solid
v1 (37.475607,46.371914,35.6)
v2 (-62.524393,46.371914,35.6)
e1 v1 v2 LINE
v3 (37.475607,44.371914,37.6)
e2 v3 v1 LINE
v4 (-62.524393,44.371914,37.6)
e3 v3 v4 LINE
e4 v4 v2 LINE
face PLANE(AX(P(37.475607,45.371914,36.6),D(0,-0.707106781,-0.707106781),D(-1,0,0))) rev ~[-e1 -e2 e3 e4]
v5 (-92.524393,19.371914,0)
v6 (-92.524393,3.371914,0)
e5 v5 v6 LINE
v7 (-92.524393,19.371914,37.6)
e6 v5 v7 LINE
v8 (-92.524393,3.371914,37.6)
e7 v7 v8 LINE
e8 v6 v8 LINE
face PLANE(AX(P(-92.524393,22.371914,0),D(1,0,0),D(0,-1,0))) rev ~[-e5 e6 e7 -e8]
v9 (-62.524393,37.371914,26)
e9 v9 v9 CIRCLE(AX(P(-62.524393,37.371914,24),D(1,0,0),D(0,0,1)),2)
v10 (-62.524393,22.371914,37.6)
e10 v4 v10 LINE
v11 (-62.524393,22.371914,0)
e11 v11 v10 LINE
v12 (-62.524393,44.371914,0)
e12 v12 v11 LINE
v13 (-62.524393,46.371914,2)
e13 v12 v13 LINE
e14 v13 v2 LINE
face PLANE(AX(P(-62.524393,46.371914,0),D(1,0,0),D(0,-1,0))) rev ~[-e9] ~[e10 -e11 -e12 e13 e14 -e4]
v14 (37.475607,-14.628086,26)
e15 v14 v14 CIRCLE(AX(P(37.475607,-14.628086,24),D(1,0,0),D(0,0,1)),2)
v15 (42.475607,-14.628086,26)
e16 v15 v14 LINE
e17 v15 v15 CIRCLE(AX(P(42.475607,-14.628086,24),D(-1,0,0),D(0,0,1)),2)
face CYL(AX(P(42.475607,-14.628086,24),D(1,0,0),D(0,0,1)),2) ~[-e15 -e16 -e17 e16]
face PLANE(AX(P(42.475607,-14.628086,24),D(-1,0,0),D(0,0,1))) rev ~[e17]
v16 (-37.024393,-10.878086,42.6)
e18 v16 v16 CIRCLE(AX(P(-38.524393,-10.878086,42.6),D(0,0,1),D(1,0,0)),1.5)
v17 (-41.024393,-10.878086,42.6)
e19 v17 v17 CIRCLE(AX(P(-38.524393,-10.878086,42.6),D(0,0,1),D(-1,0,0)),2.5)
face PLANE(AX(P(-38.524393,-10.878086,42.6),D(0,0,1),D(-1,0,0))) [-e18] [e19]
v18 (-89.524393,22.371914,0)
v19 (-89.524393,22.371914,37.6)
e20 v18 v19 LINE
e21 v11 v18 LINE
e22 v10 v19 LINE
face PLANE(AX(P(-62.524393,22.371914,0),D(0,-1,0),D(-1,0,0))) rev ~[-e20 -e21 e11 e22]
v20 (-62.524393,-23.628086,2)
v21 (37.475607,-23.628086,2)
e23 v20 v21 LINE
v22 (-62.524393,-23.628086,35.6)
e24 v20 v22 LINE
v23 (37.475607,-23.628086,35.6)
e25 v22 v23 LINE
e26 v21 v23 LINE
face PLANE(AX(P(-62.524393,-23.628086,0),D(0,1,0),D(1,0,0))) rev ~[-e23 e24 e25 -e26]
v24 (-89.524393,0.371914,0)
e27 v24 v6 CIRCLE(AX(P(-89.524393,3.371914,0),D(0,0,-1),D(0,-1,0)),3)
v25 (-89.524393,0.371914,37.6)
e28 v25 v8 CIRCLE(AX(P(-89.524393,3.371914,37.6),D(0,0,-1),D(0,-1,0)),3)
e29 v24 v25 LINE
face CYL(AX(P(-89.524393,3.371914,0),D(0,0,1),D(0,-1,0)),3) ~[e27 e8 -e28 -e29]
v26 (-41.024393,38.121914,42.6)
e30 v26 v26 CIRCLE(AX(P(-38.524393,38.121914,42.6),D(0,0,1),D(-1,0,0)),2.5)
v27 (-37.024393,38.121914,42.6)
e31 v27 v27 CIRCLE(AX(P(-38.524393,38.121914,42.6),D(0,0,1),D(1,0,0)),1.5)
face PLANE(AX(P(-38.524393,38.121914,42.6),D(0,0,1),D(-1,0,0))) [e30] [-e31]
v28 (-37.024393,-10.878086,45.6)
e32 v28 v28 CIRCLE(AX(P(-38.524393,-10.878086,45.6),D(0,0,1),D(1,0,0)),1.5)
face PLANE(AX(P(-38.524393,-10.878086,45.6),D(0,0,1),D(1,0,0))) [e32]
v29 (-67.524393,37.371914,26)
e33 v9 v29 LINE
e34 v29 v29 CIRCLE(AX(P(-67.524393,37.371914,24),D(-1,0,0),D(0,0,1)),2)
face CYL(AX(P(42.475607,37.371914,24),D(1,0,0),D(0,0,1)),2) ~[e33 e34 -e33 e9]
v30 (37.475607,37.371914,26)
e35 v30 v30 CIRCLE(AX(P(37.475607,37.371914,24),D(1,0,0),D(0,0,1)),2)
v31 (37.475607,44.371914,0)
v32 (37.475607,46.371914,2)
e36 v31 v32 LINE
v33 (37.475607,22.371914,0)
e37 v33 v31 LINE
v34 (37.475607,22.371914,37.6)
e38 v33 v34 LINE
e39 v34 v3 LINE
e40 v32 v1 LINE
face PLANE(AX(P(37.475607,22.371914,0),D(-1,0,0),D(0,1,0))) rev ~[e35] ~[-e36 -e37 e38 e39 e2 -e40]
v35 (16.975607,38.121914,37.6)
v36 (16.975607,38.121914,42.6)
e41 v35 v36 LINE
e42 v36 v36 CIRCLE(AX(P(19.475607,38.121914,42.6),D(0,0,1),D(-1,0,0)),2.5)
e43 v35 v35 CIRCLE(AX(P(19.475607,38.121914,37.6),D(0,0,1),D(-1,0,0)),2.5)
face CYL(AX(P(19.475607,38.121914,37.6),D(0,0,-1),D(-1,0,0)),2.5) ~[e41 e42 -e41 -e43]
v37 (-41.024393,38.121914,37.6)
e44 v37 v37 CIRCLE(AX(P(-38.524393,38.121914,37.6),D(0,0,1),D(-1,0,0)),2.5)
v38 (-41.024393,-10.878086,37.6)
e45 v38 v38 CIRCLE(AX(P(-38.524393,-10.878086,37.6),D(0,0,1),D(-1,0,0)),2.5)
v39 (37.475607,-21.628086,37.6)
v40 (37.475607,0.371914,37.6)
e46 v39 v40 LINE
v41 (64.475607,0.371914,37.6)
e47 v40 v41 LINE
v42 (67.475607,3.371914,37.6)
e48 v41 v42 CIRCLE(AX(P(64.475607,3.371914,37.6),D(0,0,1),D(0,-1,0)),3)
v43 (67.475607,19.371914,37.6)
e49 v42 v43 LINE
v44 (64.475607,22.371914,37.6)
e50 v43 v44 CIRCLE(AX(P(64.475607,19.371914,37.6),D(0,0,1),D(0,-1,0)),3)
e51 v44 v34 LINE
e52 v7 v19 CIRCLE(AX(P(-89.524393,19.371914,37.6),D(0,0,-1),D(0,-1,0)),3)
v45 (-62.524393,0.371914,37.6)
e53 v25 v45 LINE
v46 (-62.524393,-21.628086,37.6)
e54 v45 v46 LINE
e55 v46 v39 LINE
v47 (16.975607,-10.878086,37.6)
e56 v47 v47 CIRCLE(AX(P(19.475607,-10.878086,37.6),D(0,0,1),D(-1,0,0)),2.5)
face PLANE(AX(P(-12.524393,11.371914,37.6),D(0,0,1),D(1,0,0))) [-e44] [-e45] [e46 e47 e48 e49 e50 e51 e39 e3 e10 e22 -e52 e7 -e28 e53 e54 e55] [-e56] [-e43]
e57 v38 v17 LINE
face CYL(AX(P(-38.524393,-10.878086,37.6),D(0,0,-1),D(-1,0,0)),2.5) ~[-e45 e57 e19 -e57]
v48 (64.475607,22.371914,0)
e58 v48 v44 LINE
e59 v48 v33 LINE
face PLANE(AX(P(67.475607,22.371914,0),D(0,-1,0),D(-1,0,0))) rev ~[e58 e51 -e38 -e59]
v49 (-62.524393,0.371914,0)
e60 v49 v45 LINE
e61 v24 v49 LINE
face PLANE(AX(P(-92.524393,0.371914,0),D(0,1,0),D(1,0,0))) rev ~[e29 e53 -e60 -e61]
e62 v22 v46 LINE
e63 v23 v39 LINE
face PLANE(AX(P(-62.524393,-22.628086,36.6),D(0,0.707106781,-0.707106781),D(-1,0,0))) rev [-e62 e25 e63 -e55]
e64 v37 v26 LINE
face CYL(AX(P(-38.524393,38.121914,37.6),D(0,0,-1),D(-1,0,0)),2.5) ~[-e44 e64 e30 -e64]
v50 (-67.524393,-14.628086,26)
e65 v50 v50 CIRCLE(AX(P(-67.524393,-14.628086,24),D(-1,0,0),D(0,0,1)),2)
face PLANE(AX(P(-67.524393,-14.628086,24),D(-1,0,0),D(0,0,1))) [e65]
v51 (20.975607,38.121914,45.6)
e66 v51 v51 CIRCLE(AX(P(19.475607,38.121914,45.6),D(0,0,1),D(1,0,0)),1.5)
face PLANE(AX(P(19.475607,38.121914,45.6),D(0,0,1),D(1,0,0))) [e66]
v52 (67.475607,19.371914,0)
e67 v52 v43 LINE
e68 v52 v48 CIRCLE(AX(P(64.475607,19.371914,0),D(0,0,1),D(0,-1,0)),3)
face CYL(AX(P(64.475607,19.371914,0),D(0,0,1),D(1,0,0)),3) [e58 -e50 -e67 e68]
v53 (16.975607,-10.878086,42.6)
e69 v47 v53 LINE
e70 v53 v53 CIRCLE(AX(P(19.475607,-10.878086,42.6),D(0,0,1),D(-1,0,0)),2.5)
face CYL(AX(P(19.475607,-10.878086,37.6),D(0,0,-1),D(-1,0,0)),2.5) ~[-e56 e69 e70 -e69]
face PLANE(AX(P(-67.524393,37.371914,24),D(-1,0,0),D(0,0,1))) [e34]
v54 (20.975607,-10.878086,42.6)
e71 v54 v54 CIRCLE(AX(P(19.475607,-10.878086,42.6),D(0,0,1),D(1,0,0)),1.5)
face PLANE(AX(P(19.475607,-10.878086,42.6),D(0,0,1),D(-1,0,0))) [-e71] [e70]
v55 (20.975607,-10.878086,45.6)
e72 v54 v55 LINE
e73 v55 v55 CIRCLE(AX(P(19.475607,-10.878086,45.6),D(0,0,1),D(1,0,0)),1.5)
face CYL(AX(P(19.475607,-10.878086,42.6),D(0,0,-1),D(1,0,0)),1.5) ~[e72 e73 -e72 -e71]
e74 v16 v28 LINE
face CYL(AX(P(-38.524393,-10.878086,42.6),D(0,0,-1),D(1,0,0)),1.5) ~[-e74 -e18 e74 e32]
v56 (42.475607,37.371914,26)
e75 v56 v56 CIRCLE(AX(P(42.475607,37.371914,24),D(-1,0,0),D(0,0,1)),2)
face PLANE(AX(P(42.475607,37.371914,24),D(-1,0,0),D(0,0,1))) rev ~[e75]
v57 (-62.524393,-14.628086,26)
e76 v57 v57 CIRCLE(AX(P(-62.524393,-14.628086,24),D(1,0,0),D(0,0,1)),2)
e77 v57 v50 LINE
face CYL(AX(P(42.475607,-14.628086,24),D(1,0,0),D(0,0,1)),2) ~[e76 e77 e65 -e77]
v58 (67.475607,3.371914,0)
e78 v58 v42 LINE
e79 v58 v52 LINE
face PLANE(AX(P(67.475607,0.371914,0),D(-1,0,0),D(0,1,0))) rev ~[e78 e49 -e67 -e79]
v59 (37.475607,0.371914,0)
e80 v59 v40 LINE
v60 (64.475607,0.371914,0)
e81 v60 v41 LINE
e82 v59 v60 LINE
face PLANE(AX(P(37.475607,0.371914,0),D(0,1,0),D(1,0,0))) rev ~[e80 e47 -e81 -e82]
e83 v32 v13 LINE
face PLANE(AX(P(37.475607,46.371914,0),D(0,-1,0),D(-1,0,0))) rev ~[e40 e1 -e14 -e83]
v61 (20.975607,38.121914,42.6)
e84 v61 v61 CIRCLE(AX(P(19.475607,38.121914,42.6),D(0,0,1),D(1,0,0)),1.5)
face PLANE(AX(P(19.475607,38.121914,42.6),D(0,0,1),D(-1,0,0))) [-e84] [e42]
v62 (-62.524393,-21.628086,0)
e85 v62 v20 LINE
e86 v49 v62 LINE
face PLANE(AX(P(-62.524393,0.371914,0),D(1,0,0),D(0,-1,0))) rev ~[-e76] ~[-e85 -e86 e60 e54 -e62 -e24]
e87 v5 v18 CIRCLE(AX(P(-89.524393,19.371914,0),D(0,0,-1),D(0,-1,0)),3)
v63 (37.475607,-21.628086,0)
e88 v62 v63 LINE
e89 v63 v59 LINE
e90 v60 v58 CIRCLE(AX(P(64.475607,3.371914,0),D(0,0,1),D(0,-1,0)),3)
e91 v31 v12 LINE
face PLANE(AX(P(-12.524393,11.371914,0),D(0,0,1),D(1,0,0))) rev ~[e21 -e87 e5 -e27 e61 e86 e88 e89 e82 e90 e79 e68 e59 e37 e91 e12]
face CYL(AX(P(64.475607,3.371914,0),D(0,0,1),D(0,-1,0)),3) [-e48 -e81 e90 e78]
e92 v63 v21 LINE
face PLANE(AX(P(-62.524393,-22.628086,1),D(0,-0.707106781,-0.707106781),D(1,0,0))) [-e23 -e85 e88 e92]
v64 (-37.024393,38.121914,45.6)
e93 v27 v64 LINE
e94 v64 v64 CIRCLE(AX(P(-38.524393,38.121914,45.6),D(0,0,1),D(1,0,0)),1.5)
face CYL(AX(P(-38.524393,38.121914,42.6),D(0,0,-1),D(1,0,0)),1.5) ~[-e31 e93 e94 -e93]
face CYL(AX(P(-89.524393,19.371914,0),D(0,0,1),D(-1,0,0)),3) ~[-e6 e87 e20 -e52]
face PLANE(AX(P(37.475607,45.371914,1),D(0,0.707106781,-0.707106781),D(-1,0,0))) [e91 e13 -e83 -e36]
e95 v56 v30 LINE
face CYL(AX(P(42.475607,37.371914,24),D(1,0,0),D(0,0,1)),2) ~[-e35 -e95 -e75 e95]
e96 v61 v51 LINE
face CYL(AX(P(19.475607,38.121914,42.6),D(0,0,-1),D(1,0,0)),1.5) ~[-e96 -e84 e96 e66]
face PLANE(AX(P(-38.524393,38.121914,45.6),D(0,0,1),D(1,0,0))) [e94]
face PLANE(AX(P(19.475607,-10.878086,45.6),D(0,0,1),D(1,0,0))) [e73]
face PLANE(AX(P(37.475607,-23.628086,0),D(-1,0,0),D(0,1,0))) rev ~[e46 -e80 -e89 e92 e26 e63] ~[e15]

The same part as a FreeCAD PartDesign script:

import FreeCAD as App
import Part
import Sketcher


def edges_at(feature, points):
    """Names of the edges that pass closest to the given points."""
    edges = feature.Shape.Edges
    near = lambda p: min(range(len(edges)), key=lambda i: edges[i].distToShape(Part.Vertex(*p))[0])
    return sorted({f"Edge{near(p) + 1}" for p in points})


def add_polygon(sketch, points):
    """Adds a closed chain of lines whose ends are joined by coincident constraints."""
    first, n = sketch.GeometryCount, len(points)
    for a, b in zip(points, points[1:] + points[:1]):
        sketch.addGeometry(Part.LineSegment(App.Vector(*a, 0), App.Vector(*b, 0)), False)
    for i in range(n):
        sketch.addConstraint(Sketcher.Constraint("Coincident", first + i, 2, first + (i + 1) % n, 1))

doc = App.newDocument("Part")
body = doc.addObject("PartDesign::Body", "Body")

sketch1 = body.newObject("Sketcher::SketchObject", "Sketch")
sketch1.AttachmentSupport = (doc.getObject("XY_Plane"), [""])
sketch1.MapMode = "FlatFace"
add_polygon(sketch1, [(-63, 0), (-63, -24), (37, -24), (37, 0), (67, 0), (67, 22), (37, 22), (37, 46), (-63, 46), (-63, 22), (-93, 22), (-93, 0)])
sketch1.addConstraint(Sketcher.Constraint("Vertical", 0))
sketch1.addConstraint(Sketcher.Constraint("Horizontal", 1))
sketch1.addConstraint(Sketcher.Constraint("Vertical", 2))
sketch1.addConstraint(Sketcher.Constraint("Horizontal", 3))
sketch1.addConstraint(Sketcher.Constraint("Vertical", 4))
sketch1.addConstraint(Sketcher.Constraint("Horizontal", 5))
sketch1.addConstraint(Sketcher.Constraint("Vertical", 6))
sketch1.addConstraint(Sketcher.Constraint("Horizontal", 7))
sketch1.addConstraint(Sketcher.Constraint("Vertical", 8))
sketch1.addConstraint(Sketcher.Constraint("Horizontal", 9))
sketch1.addConstraint(Sketcher.Constraint("Vertical", 10))
sketch1.addConstraint(Sketcher.Constraint("Horizontal", 11))
sketch1.addConstraint(Sketcher.Constraint("Horizontal", 5, 2, 8, 2))
sketch1.addConstraint(Sketcher.Constraint("Horizontal", 3, 2, 10, 2))
sketch1.addConstraint(Sketcher.Constraint("Vertical", 2, 2, 5, 2))
sketch1.addConstraint(Sketcher.Constraint("Vertical", 0, 2, 7, 2))
sketch1.addConstraint(Sketcher.Constraint("Equal", 5, 9))
sketch1.addConstraint(Sketcher.Constraint("Equal", 2, 6))
sketch1.addConstraint(Sketcher.Constraint("DistanceX", 1, 1, 1, 2, 100.0))
sketch1.addConstraint(Sketcher.Constraint("DistanceX", 3, 1, 3, 2, 30.0))
sketch1.addConstraint(Sketcher.Constraint("DistanceY", 0, 2, 0, 1, 24.0))
sketch1.addConstraint(Sketcher.Constraint("DistanceY", 4, 1, 4, 2, 22.0))
sketch1.addConstraint(Sketcher.Constraint("DistanceX", 0, 2, -1, 1, 62.524393))
sketch1.addConstraint(Sketcher.Constraint("DistanceY", 0, 2, -1, 1, 23.628086))
pad1 = body.newObject("PartDesign::Pad", "Pad")
pad1.Profile = sketch1
pad1.Length = 37.6

sketch2 = body.newObject("Sketcher::SketchObject", "Sketch001")
sketch2.AttachmentSupport = (doc.getObject("YZ_Plane"), [""])
sketch2.MapMode = "FlatFace"
sketch2.AttachmentOffset = App.Placement(App.Vector(0, 0, -62.524393), App.Rotation())
sketch2.addGeometry(Part.Circle(App.Vector(-14.6, 24, 0), App.Vector(0, 0, 1), 2), False)
sketch2.addGeometry(Part.Circle(App.Vector(37.4, 24, 0), App.Vector(0, 0, 1), 2), False)
sketch2.addConstraint(Sketcher.Constraint("Equal", 0, 1))
sketch2.addConstraint(Sketcher.Constraint("Horizontal", 0, 3, 1, 3))
sketch2.addConstraint(Sketcher.Constraint("Diameter", 0, 4.0))
sketch2.addConstraint(Sketcher.Constraint("DistanceY", -1, 1, 0, 3, 24.0))
sketch2.addConstraint(Sketcher.Constraint("DistanceX", 0, 3, 1, 3, 52.0))
sketch2.addConstraint(Sketcher.Constraint("DistanceX", 0, 3, -1, 1, 14.628086))
pad2 = body.newObject("PartDesign::Pad", "Pad001")
pad2.Profile = sketch2
pad2.Type = "TwoLengths"
pad2.Length = 5
pad2.Length2 = 105
pad2.Reversed = True
doc.recompute()

fillet = body.newObject("PartDesign::Fillet", "Fillet")
fillet.Base = (pad2, edges_at(pad2, [(67.476, 22.372, 18.8), (67.476, 0.372, 18.8)]))
fillet.Radius = 3
doc.recompute()

chamfer = body.newObject("PartDesign::Chamfer", "Chamfer")
chamfer.Base = (fillet, edges_at(fillet, [(-12.524, 46.372, 0), (-12.524, -23.628, 0)]))
chamfer.Size = 2
doc.recompute()

chamfer2 = body.newObject("PartDesign::Chamfer", "Chamfer001")
chamfer2.Base = (chamfer, edges_at(chamfer, [(-12.524, -23.628, 37.6), (-12.524, 46.372, 37.6)]))
chamfer2.Size = 2
doc.recompute()

fillet2 = body.newObject("PartDesign::Fillet", "Fillet001")
fillet2.Base = (chamfer2, edges_at(chamfer2, [(-92.524, 0.372, 18.8), (-92.524, 22.372, 18.8)]))
fillet2.Radius = 3

sketch3 = body.newObject("Sketcher::SketchObject", "Sketch002")
sketch3.AttachmentSupport = (doc.getObject("XY_Plane"), [""])
sketch3.MapMode = "FlatFace"
sketch3.AttachmentOffset = App.Placement(App.Vector(0, 0, 37.6), App.Rotation())
sketch3.addGeometry(Part.Circle(App.Vector(-38.5, 38.1, 0), App.Vector(0, 0, 1), 2.5), False)
sketch3.addGeometry(Part.Circle(App.Vector(19.5, 38.1, 0), App.Vector(0, 0, 1), 2.5), False)
sketch3.addGeometry(Part.Circle(App.Vector(-38.5, -10.9, 0), App.Vector(0, 0, 1), 2.5), False)
sketch3.addGeometry(Part.Circle(App.Vector(19.5, -10.9, 0), App.Vector(0, 0, 1), 2.5), False)
sketch3.addConstraint(Sketcher.Constraint("Equal", 0, 1))
sketch3.addConstraint(Sketcher.Constraint("Equal", 1, 2))
sketch3.addConstraint(Sketcher.Constraint("Equal", 2, 3))
sketch3.addConstraint(Sketcher.Constraint("Horizontal", 0, 3, 1, 3))
sketch3.addConstraint(Sketcher.Constraint("Horizontal", 2, 3, 3, 3))
sketch3.addConstraint(Sketcher.Constraint("Vertical", 0, 3, 2, 3))
sketch3.addConstraint(Sketcher.Constraint("Vertical", 1, 3, 3, 3))
sketch3.addConstraint(Sketcher.Constraint("Diameter", 0, 5.0))
sketch3.addConstraint(Sketcher.Constraint("DistanceX", 0, 3, 1, 3, 58.0))
sketch3.addConstraint(Sketcher.Constraint("DistanceY", 2, 3, 0, 3, 49.0))
sketch3.addConstraint(Sketcher.Constraint("DistanceX", 0, 3, -1, 1, 38.524393))
sketch3.addConstraint(Sketcher.Constraint("DistanceY", -1, 1, 0, 3, 38.121914))
pad3 = body.newObject("PartDesign::Pad", "Pad002")
pad3.Profile = sketch3
pad3.Length = 5

sketch4 = body.newObject("Sketcher::SketchObject", "Sketch003")
sketch4.AttachmentSupport = (doc.getObject("XY_Plane"), [""])
sketch4.MapMode = "FlatFace"
sketch4.AttachmentOffset = App.Placement(App.Vector(0, 0, 42.6), App.Rotation())
sketch4.addGeometry(Part.Circle(App.Vector(-38.5, 38.1, 0), App.Vector(0, 0, 1), 1.5), False)
sketch4.addGeometry(Part.Circle(App.Vector(19.5, 38.1, 0), App.Vector(0, 0, 1), 1.5), False)
sketch4.addGeometry(Part.Circle(App.Vector(-38.5, -10.9, 0), App.Vector(0, 0, 1), 1.5), False)
sketch4.addGeometry(Part.Circle(App.Vector(19.5, -10.9, 0), App.Vector(0, 0, 1), 1.5), False)
sketch4.addConstraint(Sketcher.Constraint("Equal", 0, 1))
sketch4.addConstraint(Sketcher.Constraint("Equal", 1, 2))
sketch4.addConstraint(Sketcher.Constraint("Equal", 2, 3))
sketch4.addConstraint(Sketcher.Constraint("Horizontal", 0, 3, 1, 3))
sketch4.addConstraint(Sketcher.Constraint("Horizontal", 2, 3, 3, 3))
sketch4.addConstraint(Sketcher.Constraint("Vertical", 0, 3, 2, 3))
sketch4.addConstraint(Sketcher.Constraint("Vertical", 1, 3, 3, 3))
sketch4.addConstraint(Sketcher.Constraint("Diameter", 0, 3.0))
sketch4.addConstraint(Sketcher.Constraint("DistanceX", 0, 3, 1, 3, 58.0))
sketch4.addConstraint(Sketcher.Constraint("DistanceY", 2, 3, 0, 3, 49.0))
sketch4.addConstraint(Sketcher.Constraint("DistanceX", 0, 3, -1, 1, 38.524393))
sketch4.addConstraint(Sketcher.Constraint("DistanceY", -1, 1, 0, 3, 38.121914))
pad4 = body.newObject("PartDesign::Pad", "Pad003")
pad4.Profile = sketch4
pad4.Length = 3

doc.recompute()
